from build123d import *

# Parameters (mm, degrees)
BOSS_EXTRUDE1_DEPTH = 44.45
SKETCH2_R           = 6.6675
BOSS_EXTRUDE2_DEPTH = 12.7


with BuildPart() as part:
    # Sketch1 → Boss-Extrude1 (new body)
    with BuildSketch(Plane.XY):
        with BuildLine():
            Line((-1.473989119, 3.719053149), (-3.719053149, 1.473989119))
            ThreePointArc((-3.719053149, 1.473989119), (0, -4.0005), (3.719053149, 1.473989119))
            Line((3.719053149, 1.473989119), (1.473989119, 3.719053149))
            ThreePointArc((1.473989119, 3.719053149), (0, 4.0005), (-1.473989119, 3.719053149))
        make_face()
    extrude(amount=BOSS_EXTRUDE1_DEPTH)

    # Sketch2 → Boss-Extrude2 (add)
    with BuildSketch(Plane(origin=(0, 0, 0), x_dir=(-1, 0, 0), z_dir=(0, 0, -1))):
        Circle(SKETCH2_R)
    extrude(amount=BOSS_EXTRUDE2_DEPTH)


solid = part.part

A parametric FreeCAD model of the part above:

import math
import FreeCAD as App
import Part
import Sketcher
Q = App.Units.Quantity

doc = App.newDocument("Part")
body = doc.addObject("PartDesign::Body", "Body")

# Sketch on XY plane
sketch1 = body.newObject("Sketcher::SketchObject", "Sketch")
sketch1.AttachmentSupport = (doc.getObject("XY_Plane"), [""])
sketch1.MapMode = "FlatFace"
sketch1.addGeometry(Part.LineSegment(App.Vector(-1.473989, 3.719053, 0), App.Vector(-3.719053, 1.473989, 0)), False)
sketch1.addGeometry(Part.ArcOfCircle(Part.Circle(App.Vector(0, 0, 0), App.Vector(0, 0, 1), 4.0005), math.radians(158.379868), math.radians(381.620132)), False)
sketch1.addGeometry(Part.LineSegment(App.Vector(3.719053, 1.473989, 0), App.Vector(1.473989, 3.719053, 0)), False)
sketch1.addGeometry(Part.ArcOfCircle(Part.Circle(App.Vector(0, 0, 0), App.Vector(0, 0, 1), 4.0005), math.radians(68.379868), math.radians(111.620132)), False)
sketch1.addConstraint(Sketcher.Constraint("Coincident", 0, 2, 1, 1))
sketch1.addConstraint(Sketcher.Constraint("Coincident", 1, 2, 2, 1))
sketch1.addConstraint(Sketcher.Constraint("Coincident", 2, 2, 3, 1))
sketch1.addConstraint(Sketcher.Constraint("Coincident", 3, 2, 0, 1))
sketch1.addConstraint(Sketcher.Constraint("Coincident", 1, 3, -1, 1))
sketch1.addConstraint(Sketcher.Constraint("Coincident", 3, 3, -1, 1))
sketch1.addConstraint(Sketcher.Constraint("Equal", 1, 3))
sketch1.addConstraint(Sketcher.Constraint("Perpendicular", 0, 2))
sketch1.addConstraint(Sketcher.Constraint("Horizontal", 0, 2, 1, 2))
sketch1.addConstraint(Sketcher.Constraint("Horizontal", 2, 2, 3, 2))
sketch1.addConstraint(Sketcher.Constraint("Radius", 1, Q("0.1575 in")))
sketch1.addConstraint(Sketcher.Constraint("Distance", 0, Q("0.125 in")))
pad1 = body.newObject("PartDesign::Pad", "Pad")
pad1.Profile = sketch1
pad1.Length = Q("1.75 in")

# Sketch on XY plane
sketch2 = body.newObject("Sketcher::SketchObject", "Sketch001")
sketch2.AttachmentSupport = (doc.getObject("XY_Plane"), [""])
sketch2.MapMode = "FlatFace"
sketch2.addGeometry(Part.Circle(App.Vector(0, 0, 0), App.Vector(0, 0, 1), 6.6675), False)
sketch2.addConstraint(Sketcher.Constraint("Coincident", 0, 3, -1, 1))
sketch2.addConstraint(Sketcher.Constraint("Diameter", 0, Q("0.525 in")))
pad2 = body.newObject("PartDesign::Pad", "Pad001")
pad2.Profile = sketch2
pad2.Length = Q("0.5 in")
pad2.Reversed = True

doc.recompute()
